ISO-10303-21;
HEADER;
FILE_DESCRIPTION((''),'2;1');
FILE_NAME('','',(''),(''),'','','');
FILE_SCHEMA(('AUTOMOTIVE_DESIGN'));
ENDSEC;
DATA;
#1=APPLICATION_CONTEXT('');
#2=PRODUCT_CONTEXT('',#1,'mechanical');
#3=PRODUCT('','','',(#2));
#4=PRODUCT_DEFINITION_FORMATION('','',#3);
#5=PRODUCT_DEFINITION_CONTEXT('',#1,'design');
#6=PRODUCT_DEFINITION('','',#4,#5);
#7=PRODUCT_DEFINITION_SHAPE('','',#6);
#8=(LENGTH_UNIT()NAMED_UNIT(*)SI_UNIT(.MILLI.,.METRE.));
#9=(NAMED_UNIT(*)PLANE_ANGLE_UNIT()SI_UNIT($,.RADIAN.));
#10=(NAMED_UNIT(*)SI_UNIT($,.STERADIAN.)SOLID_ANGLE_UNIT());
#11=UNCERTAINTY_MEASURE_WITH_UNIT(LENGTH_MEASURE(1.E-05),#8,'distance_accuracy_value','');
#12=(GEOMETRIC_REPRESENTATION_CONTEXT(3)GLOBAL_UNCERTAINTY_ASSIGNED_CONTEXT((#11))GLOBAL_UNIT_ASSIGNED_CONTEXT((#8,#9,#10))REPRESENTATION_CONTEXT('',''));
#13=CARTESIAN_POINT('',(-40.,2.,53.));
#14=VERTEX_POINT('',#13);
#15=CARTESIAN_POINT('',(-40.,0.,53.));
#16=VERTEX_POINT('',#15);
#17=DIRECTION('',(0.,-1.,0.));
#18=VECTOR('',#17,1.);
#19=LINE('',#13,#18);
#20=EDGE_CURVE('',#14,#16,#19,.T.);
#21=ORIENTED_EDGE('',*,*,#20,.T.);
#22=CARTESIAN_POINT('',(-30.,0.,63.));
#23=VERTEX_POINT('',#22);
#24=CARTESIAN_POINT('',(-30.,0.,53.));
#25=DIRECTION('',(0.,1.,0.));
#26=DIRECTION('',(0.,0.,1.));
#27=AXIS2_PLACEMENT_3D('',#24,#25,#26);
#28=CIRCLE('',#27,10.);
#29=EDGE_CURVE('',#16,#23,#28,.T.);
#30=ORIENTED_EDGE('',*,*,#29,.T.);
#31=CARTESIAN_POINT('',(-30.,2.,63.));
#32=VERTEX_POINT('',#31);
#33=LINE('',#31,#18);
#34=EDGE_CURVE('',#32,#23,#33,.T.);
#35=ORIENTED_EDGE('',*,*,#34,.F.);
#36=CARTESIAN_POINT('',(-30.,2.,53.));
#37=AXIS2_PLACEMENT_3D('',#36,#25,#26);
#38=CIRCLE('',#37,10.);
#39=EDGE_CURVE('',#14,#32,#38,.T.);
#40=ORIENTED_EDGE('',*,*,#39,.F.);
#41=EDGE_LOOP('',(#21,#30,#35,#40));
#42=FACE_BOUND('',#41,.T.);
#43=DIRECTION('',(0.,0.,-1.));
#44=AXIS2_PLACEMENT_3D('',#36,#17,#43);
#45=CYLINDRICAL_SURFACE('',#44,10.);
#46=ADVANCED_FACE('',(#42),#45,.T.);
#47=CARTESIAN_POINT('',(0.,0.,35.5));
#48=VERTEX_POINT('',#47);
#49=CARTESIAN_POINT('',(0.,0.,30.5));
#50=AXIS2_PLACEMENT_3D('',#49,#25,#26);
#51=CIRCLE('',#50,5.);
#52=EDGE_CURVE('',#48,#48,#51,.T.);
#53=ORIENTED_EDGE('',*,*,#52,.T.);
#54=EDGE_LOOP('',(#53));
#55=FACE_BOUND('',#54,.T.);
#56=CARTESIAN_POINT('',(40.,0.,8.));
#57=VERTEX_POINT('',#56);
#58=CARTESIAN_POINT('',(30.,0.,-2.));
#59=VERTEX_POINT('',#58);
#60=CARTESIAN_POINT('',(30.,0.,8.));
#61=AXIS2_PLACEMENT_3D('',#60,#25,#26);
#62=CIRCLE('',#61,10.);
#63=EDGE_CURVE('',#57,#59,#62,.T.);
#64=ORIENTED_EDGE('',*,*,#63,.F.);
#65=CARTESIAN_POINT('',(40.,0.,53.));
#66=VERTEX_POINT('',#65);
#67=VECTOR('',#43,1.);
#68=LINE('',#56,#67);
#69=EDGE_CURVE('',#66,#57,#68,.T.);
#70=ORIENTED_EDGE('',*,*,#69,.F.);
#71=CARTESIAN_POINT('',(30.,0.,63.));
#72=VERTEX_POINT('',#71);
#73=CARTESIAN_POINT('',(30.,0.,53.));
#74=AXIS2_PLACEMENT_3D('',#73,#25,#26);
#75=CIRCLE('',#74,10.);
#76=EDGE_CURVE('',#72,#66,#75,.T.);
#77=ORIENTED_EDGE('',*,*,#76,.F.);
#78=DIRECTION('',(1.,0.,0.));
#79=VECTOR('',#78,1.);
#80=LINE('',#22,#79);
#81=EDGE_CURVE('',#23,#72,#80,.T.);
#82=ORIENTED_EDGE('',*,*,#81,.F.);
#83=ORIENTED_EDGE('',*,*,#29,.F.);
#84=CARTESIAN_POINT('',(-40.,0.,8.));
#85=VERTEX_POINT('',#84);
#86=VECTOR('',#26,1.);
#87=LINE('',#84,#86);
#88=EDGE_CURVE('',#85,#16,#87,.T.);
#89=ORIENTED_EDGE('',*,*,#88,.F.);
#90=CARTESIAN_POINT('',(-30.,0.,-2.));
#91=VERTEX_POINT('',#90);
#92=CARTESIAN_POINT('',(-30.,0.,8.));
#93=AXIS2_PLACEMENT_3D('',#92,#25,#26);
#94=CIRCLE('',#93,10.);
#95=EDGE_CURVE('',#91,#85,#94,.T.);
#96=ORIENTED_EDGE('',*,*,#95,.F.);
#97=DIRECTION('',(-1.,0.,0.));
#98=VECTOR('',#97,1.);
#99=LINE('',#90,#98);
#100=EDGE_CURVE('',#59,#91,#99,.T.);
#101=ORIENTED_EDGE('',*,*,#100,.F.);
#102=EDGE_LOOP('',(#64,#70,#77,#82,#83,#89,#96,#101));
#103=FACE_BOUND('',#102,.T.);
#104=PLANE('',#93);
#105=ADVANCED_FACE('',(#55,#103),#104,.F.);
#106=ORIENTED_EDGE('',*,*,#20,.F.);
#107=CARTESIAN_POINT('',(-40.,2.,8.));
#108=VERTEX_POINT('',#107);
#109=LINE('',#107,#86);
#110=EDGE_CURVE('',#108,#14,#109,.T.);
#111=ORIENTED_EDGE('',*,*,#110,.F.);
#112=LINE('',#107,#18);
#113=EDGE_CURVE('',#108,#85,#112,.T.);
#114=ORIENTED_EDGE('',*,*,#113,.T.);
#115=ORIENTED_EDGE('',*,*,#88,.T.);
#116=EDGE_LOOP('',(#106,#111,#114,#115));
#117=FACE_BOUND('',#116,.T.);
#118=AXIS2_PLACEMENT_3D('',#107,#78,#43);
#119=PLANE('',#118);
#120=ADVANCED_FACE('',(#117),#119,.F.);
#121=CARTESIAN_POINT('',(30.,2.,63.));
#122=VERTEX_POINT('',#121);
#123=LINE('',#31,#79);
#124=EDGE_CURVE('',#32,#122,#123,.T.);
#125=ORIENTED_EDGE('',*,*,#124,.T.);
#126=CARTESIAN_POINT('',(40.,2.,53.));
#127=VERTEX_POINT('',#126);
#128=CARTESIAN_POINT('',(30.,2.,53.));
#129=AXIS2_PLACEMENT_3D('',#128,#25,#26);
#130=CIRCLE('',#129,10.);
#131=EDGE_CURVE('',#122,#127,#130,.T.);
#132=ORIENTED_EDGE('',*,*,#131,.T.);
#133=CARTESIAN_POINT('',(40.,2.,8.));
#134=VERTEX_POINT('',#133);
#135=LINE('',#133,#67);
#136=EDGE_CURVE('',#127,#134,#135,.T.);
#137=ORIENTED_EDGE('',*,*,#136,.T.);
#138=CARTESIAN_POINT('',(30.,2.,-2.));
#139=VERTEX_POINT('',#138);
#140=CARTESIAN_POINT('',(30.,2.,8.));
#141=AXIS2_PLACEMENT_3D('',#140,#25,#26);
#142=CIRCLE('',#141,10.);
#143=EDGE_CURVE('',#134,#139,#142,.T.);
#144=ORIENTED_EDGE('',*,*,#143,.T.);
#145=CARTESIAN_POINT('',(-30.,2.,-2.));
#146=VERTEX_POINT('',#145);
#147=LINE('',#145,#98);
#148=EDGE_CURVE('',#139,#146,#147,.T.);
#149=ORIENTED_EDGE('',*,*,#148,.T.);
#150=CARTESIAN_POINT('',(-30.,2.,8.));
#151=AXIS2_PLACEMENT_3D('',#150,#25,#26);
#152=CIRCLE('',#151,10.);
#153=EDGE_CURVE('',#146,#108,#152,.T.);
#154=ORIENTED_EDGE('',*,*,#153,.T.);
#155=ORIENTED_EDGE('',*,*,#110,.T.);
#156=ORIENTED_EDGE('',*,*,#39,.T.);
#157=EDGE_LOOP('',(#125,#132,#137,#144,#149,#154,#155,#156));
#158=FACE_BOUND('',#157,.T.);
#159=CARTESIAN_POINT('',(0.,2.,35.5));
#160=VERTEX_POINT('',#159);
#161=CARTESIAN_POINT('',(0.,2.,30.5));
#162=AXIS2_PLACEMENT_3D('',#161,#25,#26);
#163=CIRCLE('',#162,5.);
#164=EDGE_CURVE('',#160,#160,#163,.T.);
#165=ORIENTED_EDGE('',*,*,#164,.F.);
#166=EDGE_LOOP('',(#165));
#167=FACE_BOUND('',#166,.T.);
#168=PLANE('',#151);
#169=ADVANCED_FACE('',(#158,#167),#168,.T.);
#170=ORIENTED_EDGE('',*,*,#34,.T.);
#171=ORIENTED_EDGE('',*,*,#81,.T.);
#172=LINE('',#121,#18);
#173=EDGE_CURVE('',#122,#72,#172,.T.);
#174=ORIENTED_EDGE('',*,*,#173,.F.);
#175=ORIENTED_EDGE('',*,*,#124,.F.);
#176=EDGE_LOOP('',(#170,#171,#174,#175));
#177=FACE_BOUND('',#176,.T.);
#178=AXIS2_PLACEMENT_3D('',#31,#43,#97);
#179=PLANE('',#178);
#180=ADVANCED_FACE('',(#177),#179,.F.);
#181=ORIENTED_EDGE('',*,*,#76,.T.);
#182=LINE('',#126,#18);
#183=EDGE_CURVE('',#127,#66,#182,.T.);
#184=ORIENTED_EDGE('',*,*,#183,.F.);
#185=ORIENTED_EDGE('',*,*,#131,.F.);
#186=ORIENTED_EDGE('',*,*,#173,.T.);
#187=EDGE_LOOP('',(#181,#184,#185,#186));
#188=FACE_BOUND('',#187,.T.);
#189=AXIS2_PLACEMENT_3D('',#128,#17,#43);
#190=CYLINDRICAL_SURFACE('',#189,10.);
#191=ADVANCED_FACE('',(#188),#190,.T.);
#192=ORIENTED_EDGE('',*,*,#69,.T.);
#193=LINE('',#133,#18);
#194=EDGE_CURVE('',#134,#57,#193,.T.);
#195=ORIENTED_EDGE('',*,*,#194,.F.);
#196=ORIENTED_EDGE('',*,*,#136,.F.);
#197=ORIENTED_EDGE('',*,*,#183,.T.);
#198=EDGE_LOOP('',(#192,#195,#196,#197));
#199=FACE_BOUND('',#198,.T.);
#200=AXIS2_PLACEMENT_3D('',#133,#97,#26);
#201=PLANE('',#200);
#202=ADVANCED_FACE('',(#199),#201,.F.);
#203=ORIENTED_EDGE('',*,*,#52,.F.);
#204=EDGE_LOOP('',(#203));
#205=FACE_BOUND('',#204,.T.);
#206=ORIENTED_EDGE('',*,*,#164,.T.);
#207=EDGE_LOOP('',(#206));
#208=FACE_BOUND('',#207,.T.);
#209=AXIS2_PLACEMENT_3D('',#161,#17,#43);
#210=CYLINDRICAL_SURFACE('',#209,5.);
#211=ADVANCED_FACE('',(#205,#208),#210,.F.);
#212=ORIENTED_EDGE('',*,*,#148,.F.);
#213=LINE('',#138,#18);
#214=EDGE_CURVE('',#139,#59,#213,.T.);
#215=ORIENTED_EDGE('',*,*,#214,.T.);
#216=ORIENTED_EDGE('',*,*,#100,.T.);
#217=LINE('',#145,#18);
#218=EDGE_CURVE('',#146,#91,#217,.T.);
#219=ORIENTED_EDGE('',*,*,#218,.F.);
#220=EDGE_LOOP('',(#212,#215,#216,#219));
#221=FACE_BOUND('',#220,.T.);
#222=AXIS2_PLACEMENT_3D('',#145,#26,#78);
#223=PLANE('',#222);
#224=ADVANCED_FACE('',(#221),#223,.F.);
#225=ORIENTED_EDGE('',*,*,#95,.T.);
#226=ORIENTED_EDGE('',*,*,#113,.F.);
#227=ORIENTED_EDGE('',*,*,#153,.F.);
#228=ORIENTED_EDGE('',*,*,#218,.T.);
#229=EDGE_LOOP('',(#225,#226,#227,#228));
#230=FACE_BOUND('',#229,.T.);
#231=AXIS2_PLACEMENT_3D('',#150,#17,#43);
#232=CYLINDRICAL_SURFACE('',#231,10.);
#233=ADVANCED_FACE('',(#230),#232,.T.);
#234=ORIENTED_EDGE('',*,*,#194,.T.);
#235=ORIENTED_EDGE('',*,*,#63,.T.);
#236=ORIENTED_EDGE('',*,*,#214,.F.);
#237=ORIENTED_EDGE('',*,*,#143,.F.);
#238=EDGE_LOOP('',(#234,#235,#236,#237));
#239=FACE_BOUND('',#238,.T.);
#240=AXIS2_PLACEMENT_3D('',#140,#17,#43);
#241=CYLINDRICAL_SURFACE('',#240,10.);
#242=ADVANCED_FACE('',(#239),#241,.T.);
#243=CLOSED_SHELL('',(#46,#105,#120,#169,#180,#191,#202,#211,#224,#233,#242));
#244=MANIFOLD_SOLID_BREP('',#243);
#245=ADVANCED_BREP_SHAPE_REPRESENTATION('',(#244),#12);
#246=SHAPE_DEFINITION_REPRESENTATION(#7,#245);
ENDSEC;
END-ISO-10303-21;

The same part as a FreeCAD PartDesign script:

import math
import FreeCAD as App
import Part
import Sketcher

V = App.Vector

doc = App.newDocument("Part")
body = doc.addObject("PartDesign::Body", "Body")

sketch1 = body.newObject("Sketcher::SketchObject", "Sketch")
sketch1.AttachmentSupport = (doc.getObject("XZ_Plane"), [""])
sketch1.MapMode = "FlatFace"
sketch1.addGeometry(Part.LineSegment(V(30, -2, 0), V(-30, -2, 0)), False)
sketch1.addGeometry(Part.ArcOfCircle(Part.Circle(V(-30, 8, 0), V(0, 0, 1), 10), math.radians(180), math.radians(270)), False)
sketch1.addGeometry(Part.LineSegment(V(-40, 8, 0), V(-40, 53, 0)), False)
sketch1.addGeometry(Part.ArcOfCircle(Part.Circle(V(-30, 53, 0), V(0, 0, 1), 10), math.radians(90), math.radians(180)), False)
sketch1.addGeometry(Part.LineSegment(V(-30, 63, 0), V(30, 63, 0)), False)
sketch1.addGeometry(Part.ArcOfCircle(Part.Circle(V(30, 53, 0), V(0, 0, 1), 10), math.radians(0), math.radians(90)), False)
sketch1.addGeometry(Part.LineSegment(V(40, 53, 0), V(40, 8, 0)), False)
sketch1.addGeometry(Part.ArcOfCircle(Part.Circle(V(30, 8, 0), V(0, 0, 1), 10), math.radians(-90), math.radians(0)), False)
sketch1.addGeometry(Part.Circle(V(0, 30, 0), V(0, 0, 1), 5), False)
sketch1.addConstraint(Sketcher.Constraint("Tangent", 0, 2, 1, 2))
sketch1.addConstraint(Sketcher.Constraint("Tangent", 1, 1, 2, 1))
sketch1.addConstraint(Sketcher.Constraint("Tangent", 2, 2, 3, 2))
sketch1.addConstraint(Sketcher.Constraint("Tangent", 3, 1, 4, 1))
sketch1.addConstraint(Sketcher.Constraint("Tangent", 4, 2, 5, 2))
sketch1.addConstraint(Sketcher.Constraint("Tangent", 5, 1, 6, 1))
sketch1.addConstraint(Sketcher.Constraint("Tangent", 6, 2, 7, 2))
sketch1.addConstraint(Sketcher.Constraint("Tangent", 7, 1, 0, 1))
sketch1.addConstraint(Sketcher.Constraint("Horizontal", 0))
sketch1.addConstraint(Sketcher.Constraint("Vertical", 2))
sketch1.addConstraint(Sketcher.Constraint("Horizontal", 4))
sketch1.addConstraint(Sketcher.Constraint("Vertical", 6))
sketch1.addConstraint(Sketcher.Constraint("Equal", 1, 3))
sketch1.addConstraint(Sketcher.Constraint("Equal", 3, 5))
sketch1.addConstraint(Sketcher.Constraint("Equal", 5, 7))
sketch1.addConstraint(Sketcher.Constraint("PointOnObject", 8, 3, -2))
sketch1.addConstraint(Sketcher.Constraint("Diameter", 8, 10.0))
sketch1.addConstraint(Sketcher.Constraint("Radius", 1, 10.0))
sketch1.addConstraint(Sketcher.Constraint("DistanceX", 0, 2, 0, 1, 60.0))
sketch1.addConstraint(Sketcher.Constraint("DistanceY", 2, 1, 2, 2, 45.0))
sketch1.addConstraint(Sketcher.Constraint("DistanceX", 1, 3, -1, 1, 30.0))
sketch1.addConstraint(Sketcher.Constraint("DistanceY", -1, 1, 1, 3, 8.0))
sketch1.addConstraint(Sketcher.Constraint("DistanceY", -1, 1, 8, 3, 30.5))
pad1 = body.newObject("PartDesign::Pad", "Pad")
pad1.Profile = sketch1
pad1.Length = 2
pad1.Reversed = True

doc.recompute()
